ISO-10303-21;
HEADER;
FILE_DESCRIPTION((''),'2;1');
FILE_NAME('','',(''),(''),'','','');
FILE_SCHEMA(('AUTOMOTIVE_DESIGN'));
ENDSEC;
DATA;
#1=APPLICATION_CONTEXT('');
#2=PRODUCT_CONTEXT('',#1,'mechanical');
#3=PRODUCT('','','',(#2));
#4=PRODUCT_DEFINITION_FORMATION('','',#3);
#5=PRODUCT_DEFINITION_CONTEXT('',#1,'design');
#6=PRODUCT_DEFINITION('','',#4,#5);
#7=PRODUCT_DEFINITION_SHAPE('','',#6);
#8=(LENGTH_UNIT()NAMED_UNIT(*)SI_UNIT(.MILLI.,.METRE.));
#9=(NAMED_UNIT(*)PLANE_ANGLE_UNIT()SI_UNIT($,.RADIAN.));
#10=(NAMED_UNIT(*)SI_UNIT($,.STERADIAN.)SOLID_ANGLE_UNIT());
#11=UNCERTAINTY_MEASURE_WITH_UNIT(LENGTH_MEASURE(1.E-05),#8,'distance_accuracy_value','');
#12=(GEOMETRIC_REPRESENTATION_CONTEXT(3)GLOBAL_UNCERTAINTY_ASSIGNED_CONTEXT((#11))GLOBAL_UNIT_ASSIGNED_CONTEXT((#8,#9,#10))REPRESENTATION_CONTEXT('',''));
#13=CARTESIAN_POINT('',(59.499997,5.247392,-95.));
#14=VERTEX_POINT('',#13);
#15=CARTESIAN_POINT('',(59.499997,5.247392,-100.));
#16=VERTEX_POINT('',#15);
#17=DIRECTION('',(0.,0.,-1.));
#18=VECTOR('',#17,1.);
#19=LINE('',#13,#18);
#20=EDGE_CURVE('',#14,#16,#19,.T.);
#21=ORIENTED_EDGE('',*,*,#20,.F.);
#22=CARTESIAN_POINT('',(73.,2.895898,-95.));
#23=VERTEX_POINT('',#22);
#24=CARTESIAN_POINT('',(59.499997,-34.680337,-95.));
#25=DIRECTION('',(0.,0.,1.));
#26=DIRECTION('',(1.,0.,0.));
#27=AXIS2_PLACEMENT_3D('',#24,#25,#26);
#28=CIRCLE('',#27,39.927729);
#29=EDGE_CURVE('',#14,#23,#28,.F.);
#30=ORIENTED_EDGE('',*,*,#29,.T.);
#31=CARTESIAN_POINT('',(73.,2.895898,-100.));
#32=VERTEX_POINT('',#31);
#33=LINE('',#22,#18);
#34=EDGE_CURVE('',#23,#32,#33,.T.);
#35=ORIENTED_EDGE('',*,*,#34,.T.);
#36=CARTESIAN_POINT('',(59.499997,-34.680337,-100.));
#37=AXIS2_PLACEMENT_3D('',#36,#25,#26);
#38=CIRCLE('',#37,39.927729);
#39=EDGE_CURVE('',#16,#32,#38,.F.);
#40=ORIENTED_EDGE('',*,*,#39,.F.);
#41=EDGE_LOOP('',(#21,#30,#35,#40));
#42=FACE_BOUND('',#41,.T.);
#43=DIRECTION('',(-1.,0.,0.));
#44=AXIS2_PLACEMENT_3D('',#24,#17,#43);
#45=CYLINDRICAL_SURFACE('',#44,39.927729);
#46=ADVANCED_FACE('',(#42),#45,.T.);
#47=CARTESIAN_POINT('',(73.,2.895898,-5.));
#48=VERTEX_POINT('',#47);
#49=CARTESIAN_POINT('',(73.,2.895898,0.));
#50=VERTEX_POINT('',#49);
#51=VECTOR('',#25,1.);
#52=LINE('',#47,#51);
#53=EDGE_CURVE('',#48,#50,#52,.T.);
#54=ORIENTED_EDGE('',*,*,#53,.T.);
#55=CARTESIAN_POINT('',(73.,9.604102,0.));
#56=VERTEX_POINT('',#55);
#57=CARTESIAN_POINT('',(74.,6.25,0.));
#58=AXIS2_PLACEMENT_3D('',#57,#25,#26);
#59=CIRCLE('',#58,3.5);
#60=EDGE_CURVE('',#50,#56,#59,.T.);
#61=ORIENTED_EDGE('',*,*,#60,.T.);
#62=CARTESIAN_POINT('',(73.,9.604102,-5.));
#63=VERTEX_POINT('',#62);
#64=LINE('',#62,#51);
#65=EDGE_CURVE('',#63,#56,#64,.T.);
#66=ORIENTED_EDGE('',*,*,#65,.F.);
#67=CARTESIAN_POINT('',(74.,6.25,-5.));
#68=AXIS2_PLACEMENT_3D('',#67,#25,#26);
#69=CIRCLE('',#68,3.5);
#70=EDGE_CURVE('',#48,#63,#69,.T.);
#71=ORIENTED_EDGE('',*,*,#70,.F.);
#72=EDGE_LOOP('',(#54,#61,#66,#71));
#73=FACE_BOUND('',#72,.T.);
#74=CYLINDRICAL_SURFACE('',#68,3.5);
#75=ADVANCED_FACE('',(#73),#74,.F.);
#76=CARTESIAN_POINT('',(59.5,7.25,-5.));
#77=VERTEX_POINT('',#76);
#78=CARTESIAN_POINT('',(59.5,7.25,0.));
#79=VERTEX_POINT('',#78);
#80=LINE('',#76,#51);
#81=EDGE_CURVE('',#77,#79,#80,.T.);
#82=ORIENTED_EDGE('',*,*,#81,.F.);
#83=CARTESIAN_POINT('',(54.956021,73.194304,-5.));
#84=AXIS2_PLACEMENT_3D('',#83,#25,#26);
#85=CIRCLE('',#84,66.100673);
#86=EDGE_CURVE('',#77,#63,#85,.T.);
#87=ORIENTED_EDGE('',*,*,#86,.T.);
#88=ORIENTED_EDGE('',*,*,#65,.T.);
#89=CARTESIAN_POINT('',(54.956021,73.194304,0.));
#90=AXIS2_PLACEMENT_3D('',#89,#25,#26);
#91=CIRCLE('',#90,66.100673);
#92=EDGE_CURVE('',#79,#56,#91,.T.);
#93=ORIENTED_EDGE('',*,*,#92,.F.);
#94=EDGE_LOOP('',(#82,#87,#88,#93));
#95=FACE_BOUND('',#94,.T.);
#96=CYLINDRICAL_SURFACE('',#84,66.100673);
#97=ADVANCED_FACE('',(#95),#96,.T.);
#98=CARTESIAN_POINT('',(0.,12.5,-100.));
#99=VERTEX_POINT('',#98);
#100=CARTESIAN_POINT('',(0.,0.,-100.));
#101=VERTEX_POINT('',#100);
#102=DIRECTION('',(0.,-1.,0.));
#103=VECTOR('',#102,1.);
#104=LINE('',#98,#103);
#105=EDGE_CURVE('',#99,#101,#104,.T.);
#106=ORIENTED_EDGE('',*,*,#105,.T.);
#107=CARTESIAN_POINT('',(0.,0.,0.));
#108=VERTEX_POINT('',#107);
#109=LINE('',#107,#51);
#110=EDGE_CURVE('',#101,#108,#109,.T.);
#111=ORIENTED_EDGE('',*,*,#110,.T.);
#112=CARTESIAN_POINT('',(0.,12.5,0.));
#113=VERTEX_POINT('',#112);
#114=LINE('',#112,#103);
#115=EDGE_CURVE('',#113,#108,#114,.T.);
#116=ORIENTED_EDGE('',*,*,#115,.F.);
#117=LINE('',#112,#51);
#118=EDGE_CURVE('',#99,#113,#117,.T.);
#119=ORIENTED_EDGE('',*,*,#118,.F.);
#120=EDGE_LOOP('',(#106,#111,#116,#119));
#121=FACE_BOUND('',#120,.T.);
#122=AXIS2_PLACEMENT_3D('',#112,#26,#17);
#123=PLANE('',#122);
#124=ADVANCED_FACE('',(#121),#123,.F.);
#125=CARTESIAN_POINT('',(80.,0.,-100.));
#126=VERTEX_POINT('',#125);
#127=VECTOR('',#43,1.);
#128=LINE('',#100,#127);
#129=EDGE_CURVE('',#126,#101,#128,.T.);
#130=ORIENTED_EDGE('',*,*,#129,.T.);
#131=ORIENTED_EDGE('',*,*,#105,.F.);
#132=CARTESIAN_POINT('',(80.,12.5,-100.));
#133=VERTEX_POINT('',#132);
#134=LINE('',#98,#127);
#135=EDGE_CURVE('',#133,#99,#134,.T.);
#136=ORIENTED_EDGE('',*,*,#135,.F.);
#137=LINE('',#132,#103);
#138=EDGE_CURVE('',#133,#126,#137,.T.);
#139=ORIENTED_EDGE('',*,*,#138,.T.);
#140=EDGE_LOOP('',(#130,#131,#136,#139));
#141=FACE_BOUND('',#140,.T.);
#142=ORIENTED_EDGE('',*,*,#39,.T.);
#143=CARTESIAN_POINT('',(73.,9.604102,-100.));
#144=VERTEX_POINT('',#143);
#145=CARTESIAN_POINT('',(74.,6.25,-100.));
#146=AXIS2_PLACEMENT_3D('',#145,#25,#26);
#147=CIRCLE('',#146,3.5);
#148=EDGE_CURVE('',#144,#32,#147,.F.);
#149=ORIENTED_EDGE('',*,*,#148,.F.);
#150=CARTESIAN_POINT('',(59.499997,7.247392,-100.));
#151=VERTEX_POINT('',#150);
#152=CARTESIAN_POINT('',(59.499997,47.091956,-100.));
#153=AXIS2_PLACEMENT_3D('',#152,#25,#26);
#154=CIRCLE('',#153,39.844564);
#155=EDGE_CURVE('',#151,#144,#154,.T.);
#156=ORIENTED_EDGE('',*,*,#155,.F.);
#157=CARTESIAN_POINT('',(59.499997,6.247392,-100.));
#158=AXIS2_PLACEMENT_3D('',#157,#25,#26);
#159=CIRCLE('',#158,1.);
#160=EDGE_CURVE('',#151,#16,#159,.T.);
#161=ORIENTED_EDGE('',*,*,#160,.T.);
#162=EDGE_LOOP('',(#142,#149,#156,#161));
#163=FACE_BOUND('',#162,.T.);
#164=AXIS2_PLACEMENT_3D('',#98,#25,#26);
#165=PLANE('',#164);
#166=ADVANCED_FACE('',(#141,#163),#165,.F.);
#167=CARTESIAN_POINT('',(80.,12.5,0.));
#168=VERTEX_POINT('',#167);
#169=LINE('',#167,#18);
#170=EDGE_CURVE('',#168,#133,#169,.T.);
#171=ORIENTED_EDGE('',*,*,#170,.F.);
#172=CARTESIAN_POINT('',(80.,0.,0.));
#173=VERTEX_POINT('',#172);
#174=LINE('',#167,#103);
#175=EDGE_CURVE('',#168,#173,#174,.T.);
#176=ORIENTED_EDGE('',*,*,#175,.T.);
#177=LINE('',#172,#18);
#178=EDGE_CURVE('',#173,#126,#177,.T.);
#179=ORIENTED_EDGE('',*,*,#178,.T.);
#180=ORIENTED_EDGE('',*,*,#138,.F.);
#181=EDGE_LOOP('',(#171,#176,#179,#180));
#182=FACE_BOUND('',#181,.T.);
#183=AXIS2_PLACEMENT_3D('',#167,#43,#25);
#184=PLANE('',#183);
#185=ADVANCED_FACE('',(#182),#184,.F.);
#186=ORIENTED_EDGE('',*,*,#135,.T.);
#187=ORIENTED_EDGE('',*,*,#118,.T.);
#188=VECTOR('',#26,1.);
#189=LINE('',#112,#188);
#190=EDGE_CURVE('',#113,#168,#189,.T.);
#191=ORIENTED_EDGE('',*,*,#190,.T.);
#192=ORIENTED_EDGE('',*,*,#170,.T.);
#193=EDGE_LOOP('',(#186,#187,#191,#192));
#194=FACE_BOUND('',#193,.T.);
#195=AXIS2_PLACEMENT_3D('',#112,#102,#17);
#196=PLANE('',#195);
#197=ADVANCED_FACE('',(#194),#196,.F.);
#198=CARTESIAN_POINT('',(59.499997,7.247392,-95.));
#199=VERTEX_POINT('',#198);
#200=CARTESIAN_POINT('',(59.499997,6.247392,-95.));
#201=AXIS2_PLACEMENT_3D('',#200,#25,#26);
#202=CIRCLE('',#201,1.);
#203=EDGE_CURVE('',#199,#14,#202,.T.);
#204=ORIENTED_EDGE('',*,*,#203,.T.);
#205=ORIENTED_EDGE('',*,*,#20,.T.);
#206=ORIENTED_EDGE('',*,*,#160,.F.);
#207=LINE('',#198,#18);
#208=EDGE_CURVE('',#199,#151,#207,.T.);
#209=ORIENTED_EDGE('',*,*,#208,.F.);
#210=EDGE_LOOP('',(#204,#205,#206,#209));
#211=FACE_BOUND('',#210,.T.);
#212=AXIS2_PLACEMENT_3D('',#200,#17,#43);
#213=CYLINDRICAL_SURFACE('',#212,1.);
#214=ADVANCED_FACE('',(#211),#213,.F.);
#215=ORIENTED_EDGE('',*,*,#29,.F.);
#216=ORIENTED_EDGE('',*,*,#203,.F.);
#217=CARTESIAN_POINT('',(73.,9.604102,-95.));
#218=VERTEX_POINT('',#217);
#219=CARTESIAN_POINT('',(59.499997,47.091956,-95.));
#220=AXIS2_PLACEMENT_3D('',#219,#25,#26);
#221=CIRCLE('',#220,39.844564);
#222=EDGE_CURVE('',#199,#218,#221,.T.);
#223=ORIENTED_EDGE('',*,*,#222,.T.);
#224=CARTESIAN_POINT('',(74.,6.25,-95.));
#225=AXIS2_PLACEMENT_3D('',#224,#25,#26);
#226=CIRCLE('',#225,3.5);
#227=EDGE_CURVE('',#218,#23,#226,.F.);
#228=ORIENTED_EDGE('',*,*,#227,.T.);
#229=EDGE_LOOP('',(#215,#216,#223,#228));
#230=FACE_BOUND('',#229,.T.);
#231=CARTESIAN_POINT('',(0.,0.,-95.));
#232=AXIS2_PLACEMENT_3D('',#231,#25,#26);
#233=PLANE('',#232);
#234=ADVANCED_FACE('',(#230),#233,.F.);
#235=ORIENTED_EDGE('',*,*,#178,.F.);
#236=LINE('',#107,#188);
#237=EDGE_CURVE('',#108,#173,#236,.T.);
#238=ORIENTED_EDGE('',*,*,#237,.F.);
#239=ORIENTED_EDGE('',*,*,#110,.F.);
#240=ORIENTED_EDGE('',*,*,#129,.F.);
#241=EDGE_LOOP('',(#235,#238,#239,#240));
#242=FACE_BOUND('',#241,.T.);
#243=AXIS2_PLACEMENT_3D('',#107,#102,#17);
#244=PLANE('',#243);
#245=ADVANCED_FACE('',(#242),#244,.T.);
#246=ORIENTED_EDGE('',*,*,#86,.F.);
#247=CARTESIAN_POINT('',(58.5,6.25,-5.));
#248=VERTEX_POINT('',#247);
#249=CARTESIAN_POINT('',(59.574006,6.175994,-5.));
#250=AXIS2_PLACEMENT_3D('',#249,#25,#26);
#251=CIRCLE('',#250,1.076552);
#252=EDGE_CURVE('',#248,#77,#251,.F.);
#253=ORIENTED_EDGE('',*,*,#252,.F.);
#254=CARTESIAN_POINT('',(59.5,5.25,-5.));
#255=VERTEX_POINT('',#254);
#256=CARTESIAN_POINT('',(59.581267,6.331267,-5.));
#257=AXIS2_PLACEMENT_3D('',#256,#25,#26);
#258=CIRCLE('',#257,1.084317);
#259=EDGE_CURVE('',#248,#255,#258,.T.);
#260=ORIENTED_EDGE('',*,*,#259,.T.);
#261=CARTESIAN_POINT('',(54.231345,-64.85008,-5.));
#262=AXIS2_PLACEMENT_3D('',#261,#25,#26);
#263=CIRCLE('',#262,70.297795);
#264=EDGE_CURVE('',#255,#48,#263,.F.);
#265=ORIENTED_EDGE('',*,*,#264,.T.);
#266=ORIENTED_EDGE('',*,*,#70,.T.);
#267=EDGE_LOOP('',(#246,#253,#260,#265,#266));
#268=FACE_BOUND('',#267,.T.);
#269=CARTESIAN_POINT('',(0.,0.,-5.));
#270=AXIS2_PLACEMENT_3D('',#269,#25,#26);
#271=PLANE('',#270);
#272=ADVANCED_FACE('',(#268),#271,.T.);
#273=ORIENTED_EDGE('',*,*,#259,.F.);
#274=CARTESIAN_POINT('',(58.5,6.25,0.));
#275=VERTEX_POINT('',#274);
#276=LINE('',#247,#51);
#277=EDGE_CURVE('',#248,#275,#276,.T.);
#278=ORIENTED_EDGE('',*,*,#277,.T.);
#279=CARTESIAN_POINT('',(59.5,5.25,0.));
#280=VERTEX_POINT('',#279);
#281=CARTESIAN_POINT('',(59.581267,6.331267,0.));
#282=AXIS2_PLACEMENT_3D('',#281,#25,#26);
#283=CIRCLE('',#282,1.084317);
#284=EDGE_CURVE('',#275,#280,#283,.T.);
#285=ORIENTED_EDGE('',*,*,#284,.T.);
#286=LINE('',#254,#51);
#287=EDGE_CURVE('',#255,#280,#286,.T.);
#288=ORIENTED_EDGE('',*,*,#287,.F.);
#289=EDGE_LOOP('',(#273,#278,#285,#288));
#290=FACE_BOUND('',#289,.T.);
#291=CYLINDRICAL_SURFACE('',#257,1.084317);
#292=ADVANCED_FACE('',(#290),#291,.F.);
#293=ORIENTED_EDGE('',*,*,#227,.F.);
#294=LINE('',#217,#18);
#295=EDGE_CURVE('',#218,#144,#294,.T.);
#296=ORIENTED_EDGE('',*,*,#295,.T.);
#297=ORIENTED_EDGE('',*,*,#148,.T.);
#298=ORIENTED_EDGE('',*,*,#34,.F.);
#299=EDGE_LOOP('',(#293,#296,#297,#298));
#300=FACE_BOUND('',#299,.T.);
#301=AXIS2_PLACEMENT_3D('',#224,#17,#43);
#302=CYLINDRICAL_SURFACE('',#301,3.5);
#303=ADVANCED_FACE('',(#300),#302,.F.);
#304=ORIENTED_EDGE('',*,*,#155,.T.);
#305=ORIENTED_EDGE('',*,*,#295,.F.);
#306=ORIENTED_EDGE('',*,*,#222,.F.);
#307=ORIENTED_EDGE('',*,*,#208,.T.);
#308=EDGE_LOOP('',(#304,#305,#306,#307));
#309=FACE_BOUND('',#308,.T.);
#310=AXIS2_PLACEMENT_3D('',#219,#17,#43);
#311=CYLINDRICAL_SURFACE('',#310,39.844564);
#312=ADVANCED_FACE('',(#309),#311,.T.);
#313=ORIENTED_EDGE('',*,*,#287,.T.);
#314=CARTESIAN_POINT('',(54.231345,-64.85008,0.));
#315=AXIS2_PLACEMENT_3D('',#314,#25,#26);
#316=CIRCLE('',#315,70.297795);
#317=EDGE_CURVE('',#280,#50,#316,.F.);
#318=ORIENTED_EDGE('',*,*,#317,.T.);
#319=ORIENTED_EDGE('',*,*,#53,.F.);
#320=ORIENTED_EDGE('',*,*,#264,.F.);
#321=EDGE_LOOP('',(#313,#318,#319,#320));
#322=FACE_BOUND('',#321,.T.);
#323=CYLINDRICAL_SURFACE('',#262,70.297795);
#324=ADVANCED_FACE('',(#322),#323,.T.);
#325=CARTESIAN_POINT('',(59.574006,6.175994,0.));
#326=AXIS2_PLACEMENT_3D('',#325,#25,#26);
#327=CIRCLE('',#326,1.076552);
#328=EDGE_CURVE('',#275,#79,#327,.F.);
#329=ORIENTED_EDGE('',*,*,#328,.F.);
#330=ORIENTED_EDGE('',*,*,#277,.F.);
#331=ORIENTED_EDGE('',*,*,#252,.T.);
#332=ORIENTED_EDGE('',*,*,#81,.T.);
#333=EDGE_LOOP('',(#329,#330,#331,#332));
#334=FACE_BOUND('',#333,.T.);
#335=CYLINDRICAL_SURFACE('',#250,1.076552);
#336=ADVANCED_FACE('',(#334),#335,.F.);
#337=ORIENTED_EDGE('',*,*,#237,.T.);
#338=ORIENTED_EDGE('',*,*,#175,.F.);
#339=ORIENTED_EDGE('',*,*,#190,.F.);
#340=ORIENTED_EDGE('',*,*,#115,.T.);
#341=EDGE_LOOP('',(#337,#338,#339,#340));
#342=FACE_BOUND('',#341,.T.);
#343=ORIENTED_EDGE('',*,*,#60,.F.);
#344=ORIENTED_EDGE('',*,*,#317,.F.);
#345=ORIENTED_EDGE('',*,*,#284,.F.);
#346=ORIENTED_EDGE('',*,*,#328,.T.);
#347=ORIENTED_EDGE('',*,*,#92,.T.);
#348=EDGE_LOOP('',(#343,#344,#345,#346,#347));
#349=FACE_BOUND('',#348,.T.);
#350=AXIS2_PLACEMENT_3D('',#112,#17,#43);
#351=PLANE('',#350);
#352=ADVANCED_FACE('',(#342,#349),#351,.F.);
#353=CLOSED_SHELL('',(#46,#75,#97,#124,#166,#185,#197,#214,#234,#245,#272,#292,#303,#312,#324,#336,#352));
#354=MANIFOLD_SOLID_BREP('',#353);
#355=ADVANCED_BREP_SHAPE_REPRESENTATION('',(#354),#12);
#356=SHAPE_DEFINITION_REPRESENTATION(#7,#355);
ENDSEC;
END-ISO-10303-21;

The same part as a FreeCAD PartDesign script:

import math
import FreeCAD as App
import Part
import Sketcher

V = App.Vector


def add_polygon(sketch, points):
    """Adds a closed chain of lines whose ends are joined by coincident constraints."""
    first, n = sketch.GeometryCount, len(points)
    for a, b in zip(points, points[1:] + points[:1]):
        sketch.addGeometry(Part.LineSegment(App.Vector(*a, 0), App.Vector(*b, 0)), False)
    for i in range(n):
        sketch.addConstraint(Sketcher.Constraint("Coincident", first + i, 2, first + (i + 1) % n, 1))

doc = App.newDocument("Part")
body = doc.addObject("PartDesign::Body", "Body")

# Sketch on XZ plane
sketch1 = body.newObject("Sketcher::SketchObject", "Sketch")
sketch1.AttachmentSupport = (doc.getObject("XZ_Plane"), [""])
sketch1.MapMode = "FlatFace"
add_polygon(sketch1, [(0, -100), (0, 0), (80, 0), (80, -100)])  # lines 0-3
sketch1.addConstraint(Sketcher.Constraint("Vertical", 0))
sketch1.addConstraint(Sketcher.Constraint("Horizontal", 1))
sketch1.addConstraint(Sketcher.Constraint("Vertical", 2))
sketch1.addConstraint(Sketcher.Constraint("Horizontal", 3))
sketch1.addConstraint(Sketcher.Constraint("Coincident", 0, 2, -1, 1))
sketch1.addConstraint(Sketcher.Constraint("DistanceX", 1, 1, 1, 2, 80.0))
sketch1.addConstraint(Sketcher.Constraint("DistanceY", 0, 1, 0, 2, 100.0))
pad1 = body.newObject("PartDesign::Pad", "Pad")
pad1.Profile = sketch1
pad1.Length = 12.5
pad1.Reversed = True

# Sketch on XY plane
sketch2 = body.newObject("Sketcher::SketchObject", "Sketch001")
sketch2.AttachmentSupport = (doc.getObject("XY_Plane"), [""])
sketch2.MapMode = "FlatFace"
sketch2.addGeometry(Part.ArcOfCircle(Part.Circle(V(74, 6.2, 0), V(0, 0, 1), 3.5), math.radians(-107), math.radians(0)), False)
sketch2.addGeometry(Part.ArcOfCircle(Part.Circle(V(74, 6.2, 0), V(0, 0, 1), 3.5), math.radians(0), math.radians(107)), False)
sketch2.addGeometry(Part.ArcOfCircle(Part.Circle(V(55, 73.2, 0), V(0, 0, 1), 66.1), math.radians(-86.06), math.radians(-74.16)), False)
sketch2.addGeometry(Part.ArcOfCircle(Part.Circle(V(59.6, 6.2, 0), V(0, 0, 1), 1.1), math.radians(94), math.radians(176)), False)
sketch2.addGeometry(Part.ArcOfCircle(Part.Circle(V(59.6, 6.3, 0), V(0, 0, 1), 1.1), math.radians(-176), math.radians(-94)), False)
sketch2.addGeometry(Part.ArcOfCircle(Part.Circle(V(54.2, -64.9, 0), V(0, 0, 1), 70.3), math.radians(74.51), math.radians(85.7)), False)
sketch2.addConstraint(Sketcher.Constraint("Tangent", 0, 2, 1, 1))
sketch2.addConstraint(Sketcher.Constraint("Coincident", 1, 2, 2, 2))
sketch2.addConstraint(Sketcher.Constraint("Tangent", 2, 1, 3, 1))
sketch2.addConstraint(Sketcher.Constraint("Coincident", 3, 2, 4, 1))
sketch2.addConstraint(Sketcher.Constraint("Tangent", 4, 2, 5, 2))
sketch2.addConstraint(Sketcher.Constraint("Coincident", 5, 1, 0, 1))
sketch2.addConstraint(Sketcher.Constraint("Equal", 0, 1))
sketch2.addConstraint(Sketcher.Constraint("Horizontal", 1, 3, 0, 2))
sketch2.addConstraint(Sketcher.Constraint("Horizontal", 0, 2, 3, 2))
sketch2.addConstraint(Sketcher.Constraint("Vertical", 2, 1, 4, 2))
sketch2.addConstraint(Sketcher.Constraint("Vertical", 1, 2, 5, 1))
sketch2.addConstraint(Sketcher.Constraint("Radius", 0, 3.5))
sketch2.addConstraint(Sketcher.Constraint("DistanceX", -1, 1, 0, 3, 74.0))
sketch2.addConstraint(Sketcher.Constraint("DistanceX", -1, 1, 1, 2, 73.0))
sketch2.addConstraint(Sketcher.Constraint("DistanceY", 0, 3, 2, 1, 1.0))
sketch2.addConstraint(Sketcher.Constraint("DistanceX", 3, 2, 2, 1, 1.0))
sketch2.addConstraint(Sketcher.Constraint("DistanceY", 4, 2, 3, 2, 1.0))
sketch2.addConstraint(Sketcher.Constraint("DistanceX", -1, 1, 2, 1, 59.5))
sketch2.addConstraint(Sketcher.Constraint("DistanceY", -1, 1, 0, 3, 6.25))
sketch2.addConstraint(Sketcher.Constraint("Radius", 2, 66.100673))
sketch2.addConstraint(Sketcher.Constraint("Radius", 5, 70.297795))
pocket1 = body.newObject("PartDesign::Pocket", "Pocket")
pocket1.Profile = sketch2
pocket1.Length = 5

# Sketch on XY plane
sketch3 = body.newObject("Sketcher::SketchObject", "Sketch002")
sketch3.AttachmentSupport = (doc.getObject("XY_Plane"), [""])
sketch3.MapMode = "FlatFace"
sketch3.AttachmentOffset = App.Placement(V(0, 0, -95), App.Rotation())
sketch3.addGeometry(Part.ArcOfCircle(Part.Circle(V(74, 6.2, 0), V(0, 0, 1), 3.5), math.radians(-107), math.radians(107)), False)
sketch3.addGeometry(Part.ArcOfCircle(Part.Circle(V(59.5, 47.1, 0), V(0, 0, 1), 39.8), math.radians(-90), math.radians(-70.2)), False)
sketch3.addGeometry(Part.ArcOfCircle(Part.Circle(V(59.5, 6.2, 0), V(0, 0, 1), 1), math.radians(90), math.radians(270)), False)
sketch3.addGeometry(Part.ArcOfCircle(Part.Circle(V(59.5, -34.7, 0), V(0, 0, 1), 39.9), math.radians(70.24), math.radians(90)), False)
sketch3.addConstraint(Sketcher.Constraint("Coincident", 0, 2, 1, 2))
sketch3.addConstraint(Sketcher.Constraint("Tangent", 1, 1, 2, 1))
sketch3.addConstraint(Sketcher.Constraint("Tangent", 2, 2, 3, 2))
sketch3.addConstraint(Sketcher.Constraint("Coincident", 3, 1, 0, 1))
sketch3.addConstraint(Sketcher.Constraint("Vertical", 1, 3, 2, 3))
sketch3.addConstraint(Sketcher.Constraint("Vertical", 2, 3, 3, 3))
sketch3.addConstraint(Sketcher.Constraint("Vertical", 0, 2, 3, 1))
sketch3.addConstraint(Sketcher.Constraint("Radius", 2, 1.0))
sketch3.addConstraint(Sketcher.Constraint("Radius", 0, 3.5))
sketch3.addConstraint(Sketcher.Constraint("DistanceX", -1, 1, 0, 3, 74.0))
sketch3.addConstraint(Sketcher.Constraint("DistanceX", -1, 1, 0, 2, 73.0))
sketch3.addConstraint(Sketcher.Constraint("DistanceY", -1, 1, 0, 3, 6.25))
sketch3.addConstraint(Sketcher.Constraint("Radius", 3, 39.927729))
sketch3.addConstraint(Sketcher.Constraint("Radius", 1, 39.844564))
pocket2 = body.newObject("PartDesign::Pocket", "Pocket001")
pocket2.Profile = sketch3
pocket2.Length = 5

doc.recompute()
